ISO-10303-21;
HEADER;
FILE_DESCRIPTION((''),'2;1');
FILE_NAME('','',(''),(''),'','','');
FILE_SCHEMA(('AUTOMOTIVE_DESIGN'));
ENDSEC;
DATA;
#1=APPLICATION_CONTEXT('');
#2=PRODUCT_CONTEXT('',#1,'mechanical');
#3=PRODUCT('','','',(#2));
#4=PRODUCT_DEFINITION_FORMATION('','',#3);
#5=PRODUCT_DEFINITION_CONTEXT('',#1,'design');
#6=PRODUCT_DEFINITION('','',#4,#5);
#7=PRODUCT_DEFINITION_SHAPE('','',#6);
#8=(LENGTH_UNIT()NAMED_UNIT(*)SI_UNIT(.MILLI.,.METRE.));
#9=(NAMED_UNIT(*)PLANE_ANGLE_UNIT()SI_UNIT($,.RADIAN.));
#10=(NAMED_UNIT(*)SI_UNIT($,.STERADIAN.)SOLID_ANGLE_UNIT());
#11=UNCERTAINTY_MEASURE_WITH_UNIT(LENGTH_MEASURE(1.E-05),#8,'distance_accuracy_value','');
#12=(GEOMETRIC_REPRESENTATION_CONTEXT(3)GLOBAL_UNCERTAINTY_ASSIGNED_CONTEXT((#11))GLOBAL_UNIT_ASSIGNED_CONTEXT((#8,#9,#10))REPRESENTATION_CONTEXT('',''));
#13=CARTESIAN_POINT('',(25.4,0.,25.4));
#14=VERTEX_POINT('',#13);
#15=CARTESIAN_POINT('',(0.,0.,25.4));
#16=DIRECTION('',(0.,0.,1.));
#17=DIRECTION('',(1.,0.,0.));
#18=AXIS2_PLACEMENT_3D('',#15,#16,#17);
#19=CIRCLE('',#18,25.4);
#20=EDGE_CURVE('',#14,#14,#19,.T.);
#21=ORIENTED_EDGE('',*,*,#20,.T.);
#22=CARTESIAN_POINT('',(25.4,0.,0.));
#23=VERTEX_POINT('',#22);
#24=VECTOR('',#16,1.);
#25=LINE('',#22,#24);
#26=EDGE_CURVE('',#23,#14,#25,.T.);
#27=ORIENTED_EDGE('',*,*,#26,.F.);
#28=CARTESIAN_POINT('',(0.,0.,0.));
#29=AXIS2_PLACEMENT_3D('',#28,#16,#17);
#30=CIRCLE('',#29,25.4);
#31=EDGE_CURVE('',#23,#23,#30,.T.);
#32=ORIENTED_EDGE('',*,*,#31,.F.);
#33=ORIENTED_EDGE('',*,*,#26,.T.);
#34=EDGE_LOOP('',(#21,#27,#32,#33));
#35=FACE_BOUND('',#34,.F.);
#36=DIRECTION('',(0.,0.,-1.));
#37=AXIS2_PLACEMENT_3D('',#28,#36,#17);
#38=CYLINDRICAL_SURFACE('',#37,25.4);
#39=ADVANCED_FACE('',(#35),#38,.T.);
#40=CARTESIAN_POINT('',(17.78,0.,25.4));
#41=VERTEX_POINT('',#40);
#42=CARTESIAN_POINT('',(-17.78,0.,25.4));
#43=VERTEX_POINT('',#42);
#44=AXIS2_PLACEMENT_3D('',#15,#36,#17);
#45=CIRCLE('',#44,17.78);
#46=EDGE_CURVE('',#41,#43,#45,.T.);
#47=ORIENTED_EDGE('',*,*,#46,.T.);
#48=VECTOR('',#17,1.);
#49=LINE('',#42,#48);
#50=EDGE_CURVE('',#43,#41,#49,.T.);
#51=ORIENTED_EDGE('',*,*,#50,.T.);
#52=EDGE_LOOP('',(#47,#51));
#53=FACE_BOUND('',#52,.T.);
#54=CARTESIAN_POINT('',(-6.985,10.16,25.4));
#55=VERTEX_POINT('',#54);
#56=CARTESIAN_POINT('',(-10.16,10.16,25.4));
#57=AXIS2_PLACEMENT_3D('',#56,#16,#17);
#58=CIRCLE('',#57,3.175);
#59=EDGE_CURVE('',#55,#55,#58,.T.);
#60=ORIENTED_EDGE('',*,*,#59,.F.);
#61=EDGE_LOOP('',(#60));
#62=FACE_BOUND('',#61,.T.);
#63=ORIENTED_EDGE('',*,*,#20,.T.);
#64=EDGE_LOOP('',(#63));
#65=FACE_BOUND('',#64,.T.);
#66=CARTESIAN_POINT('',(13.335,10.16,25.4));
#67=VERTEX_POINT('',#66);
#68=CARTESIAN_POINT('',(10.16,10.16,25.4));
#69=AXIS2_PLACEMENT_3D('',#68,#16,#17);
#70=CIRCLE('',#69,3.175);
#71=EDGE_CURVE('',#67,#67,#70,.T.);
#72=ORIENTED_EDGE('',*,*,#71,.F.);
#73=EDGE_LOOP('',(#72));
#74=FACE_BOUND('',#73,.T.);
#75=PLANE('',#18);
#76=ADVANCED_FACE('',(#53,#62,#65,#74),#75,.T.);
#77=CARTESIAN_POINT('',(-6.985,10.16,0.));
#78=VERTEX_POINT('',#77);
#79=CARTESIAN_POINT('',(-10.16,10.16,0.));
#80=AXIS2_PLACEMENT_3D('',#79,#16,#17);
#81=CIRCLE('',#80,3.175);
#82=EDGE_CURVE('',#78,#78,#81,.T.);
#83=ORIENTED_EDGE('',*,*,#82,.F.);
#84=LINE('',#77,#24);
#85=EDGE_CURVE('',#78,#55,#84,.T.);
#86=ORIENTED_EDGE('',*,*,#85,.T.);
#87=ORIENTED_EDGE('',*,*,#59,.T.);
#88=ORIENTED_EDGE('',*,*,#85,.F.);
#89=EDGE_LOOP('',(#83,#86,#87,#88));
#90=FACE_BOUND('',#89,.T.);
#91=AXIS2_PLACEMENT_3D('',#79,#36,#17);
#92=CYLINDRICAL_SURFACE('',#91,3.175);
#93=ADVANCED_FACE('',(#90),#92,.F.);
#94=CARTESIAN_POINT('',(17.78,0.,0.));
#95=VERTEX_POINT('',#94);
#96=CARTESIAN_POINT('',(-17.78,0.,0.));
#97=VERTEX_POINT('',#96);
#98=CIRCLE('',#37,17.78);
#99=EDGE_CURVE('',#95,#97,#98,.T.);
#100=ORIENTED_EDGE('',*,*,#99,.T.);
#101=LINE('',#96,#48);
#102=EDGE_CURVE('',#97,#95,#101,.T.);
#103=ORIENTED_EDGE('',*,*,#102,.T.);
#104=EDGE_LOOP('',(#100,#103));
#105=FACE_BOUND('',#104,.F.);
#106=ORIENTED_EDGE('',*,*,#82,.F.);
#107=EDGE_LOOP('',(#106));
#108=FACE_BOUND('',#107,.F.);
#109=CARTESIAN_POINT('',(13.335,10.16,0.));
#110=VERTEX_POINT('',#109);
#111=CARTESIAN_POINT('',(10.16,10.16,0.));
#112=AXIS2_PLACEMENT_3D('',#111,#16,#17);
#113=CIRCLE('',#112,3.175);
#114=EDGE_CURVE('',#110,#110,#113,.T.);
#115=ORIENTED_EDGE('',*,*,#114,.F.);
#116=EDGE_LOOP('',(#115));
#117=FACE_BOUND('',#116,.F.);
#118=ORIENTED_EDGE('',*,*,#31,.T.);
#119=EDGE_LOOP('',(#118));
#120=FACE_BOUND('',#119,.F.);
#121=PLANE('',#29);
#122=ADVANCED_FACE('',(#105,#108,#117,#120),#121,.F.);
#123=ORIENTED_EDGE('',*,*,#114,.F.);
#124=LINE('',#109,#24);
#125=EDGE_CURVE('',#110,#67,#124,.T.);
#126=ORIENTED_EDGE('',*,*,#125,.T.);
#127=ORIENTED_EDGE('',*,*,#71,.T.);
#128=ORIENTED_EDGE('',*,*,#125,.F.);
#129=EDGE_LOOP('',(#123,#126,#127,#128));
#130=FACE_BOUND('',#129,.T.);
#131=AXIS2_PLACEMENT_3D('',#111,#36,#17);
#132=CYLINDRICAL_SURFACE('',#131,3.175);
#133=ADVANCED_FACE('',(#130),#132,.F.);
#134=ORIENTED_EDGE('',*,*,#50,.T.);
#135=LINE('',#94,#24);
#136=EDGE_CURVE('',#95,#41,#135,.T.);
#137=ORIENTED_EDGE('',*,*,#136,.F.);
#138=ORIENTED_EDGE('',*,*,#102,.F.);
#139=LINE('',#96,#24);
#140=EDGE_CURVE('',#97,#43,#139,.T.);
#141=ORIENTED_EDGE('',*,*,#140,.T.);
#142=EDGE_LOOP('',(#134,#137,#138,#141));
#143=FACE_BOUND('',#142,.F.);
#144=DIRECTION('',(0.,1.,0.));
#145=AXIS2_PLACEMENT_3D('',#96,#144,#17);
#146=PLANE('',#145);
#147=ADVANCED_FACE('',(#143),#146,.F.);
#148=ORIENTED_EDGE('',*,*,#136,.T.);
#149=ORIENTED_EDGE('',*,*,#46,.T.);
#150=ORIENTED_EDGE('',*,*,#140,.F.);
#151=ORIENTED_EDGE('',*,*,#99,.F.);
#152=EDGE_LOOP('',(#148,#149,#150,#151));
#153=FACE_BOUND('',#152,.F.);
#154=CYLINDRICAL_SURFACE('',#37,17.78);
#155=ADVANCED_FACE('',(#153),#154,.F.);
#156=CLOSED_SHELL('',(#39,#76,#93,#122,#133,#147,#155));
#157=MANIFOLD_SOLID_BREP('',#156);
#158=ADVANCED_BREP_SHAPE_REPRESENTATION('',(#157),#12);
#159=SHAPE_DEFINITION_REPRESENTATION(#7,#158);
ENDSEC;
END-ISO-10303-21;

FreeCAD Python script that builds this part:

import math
import FreeCAD as App
import Part
import Sketcher
Q = App.Units.Quantity

doc = App.newDocument("Part")
body = doc.addObject("PartDesign::Body", "Body")

# Sketch on XY plane
sketch1 = body.newObject("Sketcher::SketchObject", "Sketch")
sketch1.AttachmentSupport = (doc.getObject("XY_Plane"), [""])
sketch1.MapMode = "FlatFace"
sketch1.addGeometry([
    Part.Circle(App.Vector(0, 0, 0), App.Vector(0, 0, 1), 25.4),  # 0
    Part.ArcOfCircle(Part.Circle(App.Vector(0, 0, 0), App.Vector(0, 0, 1), 17.8), math.radians(180), math.radians(360)),  # 1
    Part.LineSegment(App.Vector(-17.8, 0, 0), App.Vector(17.8, 0, 0)),  # 2
    Part.Circle(App.Vector(-10.2, 10.2, 0), App.Vector(0, 0, 1), 3.2),  # 3
    Part.Circle(App.Vector(10.2, 10.2, 0), App.Vector(0, 0, 1), 3.2),  # 4
], False)
sketch1.addConstraint([
    Sketcher.Constraint("Coincident", 1, 1, 2, 1),
    Sketcher.Constraint("Coincident", 2, 2, 1, 2),
    Sketcher.Constraint("Horizontal", 2),
    Sketcher.Constraint("Coincident", 0, 3, -1, 1),
    Sketcher.Constraint("Coincident", 1, 3, -1, 1),
    Sketcher.Constraint("Equal", 3, 4),
    Sketcher.Constraint("Symmetric", 3, 3, 4, 3, -2),
    Sketcher.Constraint("PointOnObject", 1, 1, -1),
    Sketcher.Constraint("Diameter", 0, Q("2 in")),
    Sketcher.Constraint("Radius", 1, Q("0.7 in")),
    Sketcher.Constraint("Diameter", 3, Q("0.25 in")),
    Sketcher.Constraint("DistanceX", 3, 3, -1, 1, Q("0.4 in")),
    Sketcher.Constraint("DistanceY", -1, 1, 3, 3, Q("0.4 in")),
])
pad1 = body.newObject("PartDesign::Pad", "Pad")
pad1.Profile = sketch1
pad1.Length = Q("1 in")

doc.recompute()
